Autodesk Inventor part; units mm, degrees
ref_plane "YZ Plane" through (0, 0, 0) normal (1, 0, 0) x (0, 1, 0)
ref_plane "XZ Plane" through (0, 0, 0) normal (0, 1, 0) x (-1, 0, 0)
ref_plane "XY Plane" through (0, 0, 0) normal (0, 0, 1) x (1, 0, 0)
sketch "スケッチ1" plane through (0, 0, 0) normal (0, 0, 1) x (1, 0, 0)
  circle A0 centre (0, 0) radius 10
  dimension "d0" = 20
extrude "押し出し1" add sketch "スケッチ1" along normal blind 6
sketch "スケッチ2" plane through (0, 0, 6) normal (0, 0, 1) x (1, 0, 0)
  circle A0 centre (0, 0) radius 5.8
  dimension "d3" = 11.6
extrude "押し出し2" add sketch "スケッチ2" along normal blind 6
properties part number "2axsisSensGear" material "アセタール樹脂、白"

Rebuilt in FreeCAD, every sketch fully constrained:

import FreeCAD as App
import Part
import Sketcher
from FreeCAD import Vector

doc = App.newDocument("Part")
body = doc.addObject("PartDesign::Body", "Body")

sketch1 = doc.addObject("Sketcher::SketchObject", "Sketch")
body.addObject(sketch1)
sketch1.AttachmentSupport = (doc.XY_Plane, [""])
sketch1.MapMode = "FlatFace"
sketch1.addGeometry(Part.Circle(Vector(0, 0, 0), Vector(0, 0, 1), 10), False)
sketch1.addConstraint(Sketcher.Constraint("Coincident", 0, 3, -1, 1))
sketch1.addConstraint(Sketcher.Constraint("Diameter", 0, 20.0))
pad1 = doc.addObject("PartDesign::Pad", "Pad")
body.addObject(pad1)
pad1.Profile = sketch1
pad1.Length = 6

sketch2 = doc.addObject("Sketcher::SketchObject", "Sketch001")
body.addObject(sketch2)
sketch2.AttachmentSupport = (doc.XY_Plane, [""])
sketch2.MapMode = "FlatFace"
sketch2.AttachmentOffset = App.Placement(Vector(0, 0, 6), App.Rotation())
sketch2.addGeometry(Part.Circle(Vector(0, 0, 0), Vector(0, 0, 1), 6), False)
sketch2.addConstraint(Sketcher.Constraint("Coincident", 0, 3, -1, 1))
sketch2.addConstraint(Sketcher.Constraint("Diameter", 0, 11.6))
pad2 = doc.addObject("PartDesign::Pad", "Pad001")
body.addObject(pad2)
pad2.Profile = sketch2
pad2.Length = 6

doc.recompute()
